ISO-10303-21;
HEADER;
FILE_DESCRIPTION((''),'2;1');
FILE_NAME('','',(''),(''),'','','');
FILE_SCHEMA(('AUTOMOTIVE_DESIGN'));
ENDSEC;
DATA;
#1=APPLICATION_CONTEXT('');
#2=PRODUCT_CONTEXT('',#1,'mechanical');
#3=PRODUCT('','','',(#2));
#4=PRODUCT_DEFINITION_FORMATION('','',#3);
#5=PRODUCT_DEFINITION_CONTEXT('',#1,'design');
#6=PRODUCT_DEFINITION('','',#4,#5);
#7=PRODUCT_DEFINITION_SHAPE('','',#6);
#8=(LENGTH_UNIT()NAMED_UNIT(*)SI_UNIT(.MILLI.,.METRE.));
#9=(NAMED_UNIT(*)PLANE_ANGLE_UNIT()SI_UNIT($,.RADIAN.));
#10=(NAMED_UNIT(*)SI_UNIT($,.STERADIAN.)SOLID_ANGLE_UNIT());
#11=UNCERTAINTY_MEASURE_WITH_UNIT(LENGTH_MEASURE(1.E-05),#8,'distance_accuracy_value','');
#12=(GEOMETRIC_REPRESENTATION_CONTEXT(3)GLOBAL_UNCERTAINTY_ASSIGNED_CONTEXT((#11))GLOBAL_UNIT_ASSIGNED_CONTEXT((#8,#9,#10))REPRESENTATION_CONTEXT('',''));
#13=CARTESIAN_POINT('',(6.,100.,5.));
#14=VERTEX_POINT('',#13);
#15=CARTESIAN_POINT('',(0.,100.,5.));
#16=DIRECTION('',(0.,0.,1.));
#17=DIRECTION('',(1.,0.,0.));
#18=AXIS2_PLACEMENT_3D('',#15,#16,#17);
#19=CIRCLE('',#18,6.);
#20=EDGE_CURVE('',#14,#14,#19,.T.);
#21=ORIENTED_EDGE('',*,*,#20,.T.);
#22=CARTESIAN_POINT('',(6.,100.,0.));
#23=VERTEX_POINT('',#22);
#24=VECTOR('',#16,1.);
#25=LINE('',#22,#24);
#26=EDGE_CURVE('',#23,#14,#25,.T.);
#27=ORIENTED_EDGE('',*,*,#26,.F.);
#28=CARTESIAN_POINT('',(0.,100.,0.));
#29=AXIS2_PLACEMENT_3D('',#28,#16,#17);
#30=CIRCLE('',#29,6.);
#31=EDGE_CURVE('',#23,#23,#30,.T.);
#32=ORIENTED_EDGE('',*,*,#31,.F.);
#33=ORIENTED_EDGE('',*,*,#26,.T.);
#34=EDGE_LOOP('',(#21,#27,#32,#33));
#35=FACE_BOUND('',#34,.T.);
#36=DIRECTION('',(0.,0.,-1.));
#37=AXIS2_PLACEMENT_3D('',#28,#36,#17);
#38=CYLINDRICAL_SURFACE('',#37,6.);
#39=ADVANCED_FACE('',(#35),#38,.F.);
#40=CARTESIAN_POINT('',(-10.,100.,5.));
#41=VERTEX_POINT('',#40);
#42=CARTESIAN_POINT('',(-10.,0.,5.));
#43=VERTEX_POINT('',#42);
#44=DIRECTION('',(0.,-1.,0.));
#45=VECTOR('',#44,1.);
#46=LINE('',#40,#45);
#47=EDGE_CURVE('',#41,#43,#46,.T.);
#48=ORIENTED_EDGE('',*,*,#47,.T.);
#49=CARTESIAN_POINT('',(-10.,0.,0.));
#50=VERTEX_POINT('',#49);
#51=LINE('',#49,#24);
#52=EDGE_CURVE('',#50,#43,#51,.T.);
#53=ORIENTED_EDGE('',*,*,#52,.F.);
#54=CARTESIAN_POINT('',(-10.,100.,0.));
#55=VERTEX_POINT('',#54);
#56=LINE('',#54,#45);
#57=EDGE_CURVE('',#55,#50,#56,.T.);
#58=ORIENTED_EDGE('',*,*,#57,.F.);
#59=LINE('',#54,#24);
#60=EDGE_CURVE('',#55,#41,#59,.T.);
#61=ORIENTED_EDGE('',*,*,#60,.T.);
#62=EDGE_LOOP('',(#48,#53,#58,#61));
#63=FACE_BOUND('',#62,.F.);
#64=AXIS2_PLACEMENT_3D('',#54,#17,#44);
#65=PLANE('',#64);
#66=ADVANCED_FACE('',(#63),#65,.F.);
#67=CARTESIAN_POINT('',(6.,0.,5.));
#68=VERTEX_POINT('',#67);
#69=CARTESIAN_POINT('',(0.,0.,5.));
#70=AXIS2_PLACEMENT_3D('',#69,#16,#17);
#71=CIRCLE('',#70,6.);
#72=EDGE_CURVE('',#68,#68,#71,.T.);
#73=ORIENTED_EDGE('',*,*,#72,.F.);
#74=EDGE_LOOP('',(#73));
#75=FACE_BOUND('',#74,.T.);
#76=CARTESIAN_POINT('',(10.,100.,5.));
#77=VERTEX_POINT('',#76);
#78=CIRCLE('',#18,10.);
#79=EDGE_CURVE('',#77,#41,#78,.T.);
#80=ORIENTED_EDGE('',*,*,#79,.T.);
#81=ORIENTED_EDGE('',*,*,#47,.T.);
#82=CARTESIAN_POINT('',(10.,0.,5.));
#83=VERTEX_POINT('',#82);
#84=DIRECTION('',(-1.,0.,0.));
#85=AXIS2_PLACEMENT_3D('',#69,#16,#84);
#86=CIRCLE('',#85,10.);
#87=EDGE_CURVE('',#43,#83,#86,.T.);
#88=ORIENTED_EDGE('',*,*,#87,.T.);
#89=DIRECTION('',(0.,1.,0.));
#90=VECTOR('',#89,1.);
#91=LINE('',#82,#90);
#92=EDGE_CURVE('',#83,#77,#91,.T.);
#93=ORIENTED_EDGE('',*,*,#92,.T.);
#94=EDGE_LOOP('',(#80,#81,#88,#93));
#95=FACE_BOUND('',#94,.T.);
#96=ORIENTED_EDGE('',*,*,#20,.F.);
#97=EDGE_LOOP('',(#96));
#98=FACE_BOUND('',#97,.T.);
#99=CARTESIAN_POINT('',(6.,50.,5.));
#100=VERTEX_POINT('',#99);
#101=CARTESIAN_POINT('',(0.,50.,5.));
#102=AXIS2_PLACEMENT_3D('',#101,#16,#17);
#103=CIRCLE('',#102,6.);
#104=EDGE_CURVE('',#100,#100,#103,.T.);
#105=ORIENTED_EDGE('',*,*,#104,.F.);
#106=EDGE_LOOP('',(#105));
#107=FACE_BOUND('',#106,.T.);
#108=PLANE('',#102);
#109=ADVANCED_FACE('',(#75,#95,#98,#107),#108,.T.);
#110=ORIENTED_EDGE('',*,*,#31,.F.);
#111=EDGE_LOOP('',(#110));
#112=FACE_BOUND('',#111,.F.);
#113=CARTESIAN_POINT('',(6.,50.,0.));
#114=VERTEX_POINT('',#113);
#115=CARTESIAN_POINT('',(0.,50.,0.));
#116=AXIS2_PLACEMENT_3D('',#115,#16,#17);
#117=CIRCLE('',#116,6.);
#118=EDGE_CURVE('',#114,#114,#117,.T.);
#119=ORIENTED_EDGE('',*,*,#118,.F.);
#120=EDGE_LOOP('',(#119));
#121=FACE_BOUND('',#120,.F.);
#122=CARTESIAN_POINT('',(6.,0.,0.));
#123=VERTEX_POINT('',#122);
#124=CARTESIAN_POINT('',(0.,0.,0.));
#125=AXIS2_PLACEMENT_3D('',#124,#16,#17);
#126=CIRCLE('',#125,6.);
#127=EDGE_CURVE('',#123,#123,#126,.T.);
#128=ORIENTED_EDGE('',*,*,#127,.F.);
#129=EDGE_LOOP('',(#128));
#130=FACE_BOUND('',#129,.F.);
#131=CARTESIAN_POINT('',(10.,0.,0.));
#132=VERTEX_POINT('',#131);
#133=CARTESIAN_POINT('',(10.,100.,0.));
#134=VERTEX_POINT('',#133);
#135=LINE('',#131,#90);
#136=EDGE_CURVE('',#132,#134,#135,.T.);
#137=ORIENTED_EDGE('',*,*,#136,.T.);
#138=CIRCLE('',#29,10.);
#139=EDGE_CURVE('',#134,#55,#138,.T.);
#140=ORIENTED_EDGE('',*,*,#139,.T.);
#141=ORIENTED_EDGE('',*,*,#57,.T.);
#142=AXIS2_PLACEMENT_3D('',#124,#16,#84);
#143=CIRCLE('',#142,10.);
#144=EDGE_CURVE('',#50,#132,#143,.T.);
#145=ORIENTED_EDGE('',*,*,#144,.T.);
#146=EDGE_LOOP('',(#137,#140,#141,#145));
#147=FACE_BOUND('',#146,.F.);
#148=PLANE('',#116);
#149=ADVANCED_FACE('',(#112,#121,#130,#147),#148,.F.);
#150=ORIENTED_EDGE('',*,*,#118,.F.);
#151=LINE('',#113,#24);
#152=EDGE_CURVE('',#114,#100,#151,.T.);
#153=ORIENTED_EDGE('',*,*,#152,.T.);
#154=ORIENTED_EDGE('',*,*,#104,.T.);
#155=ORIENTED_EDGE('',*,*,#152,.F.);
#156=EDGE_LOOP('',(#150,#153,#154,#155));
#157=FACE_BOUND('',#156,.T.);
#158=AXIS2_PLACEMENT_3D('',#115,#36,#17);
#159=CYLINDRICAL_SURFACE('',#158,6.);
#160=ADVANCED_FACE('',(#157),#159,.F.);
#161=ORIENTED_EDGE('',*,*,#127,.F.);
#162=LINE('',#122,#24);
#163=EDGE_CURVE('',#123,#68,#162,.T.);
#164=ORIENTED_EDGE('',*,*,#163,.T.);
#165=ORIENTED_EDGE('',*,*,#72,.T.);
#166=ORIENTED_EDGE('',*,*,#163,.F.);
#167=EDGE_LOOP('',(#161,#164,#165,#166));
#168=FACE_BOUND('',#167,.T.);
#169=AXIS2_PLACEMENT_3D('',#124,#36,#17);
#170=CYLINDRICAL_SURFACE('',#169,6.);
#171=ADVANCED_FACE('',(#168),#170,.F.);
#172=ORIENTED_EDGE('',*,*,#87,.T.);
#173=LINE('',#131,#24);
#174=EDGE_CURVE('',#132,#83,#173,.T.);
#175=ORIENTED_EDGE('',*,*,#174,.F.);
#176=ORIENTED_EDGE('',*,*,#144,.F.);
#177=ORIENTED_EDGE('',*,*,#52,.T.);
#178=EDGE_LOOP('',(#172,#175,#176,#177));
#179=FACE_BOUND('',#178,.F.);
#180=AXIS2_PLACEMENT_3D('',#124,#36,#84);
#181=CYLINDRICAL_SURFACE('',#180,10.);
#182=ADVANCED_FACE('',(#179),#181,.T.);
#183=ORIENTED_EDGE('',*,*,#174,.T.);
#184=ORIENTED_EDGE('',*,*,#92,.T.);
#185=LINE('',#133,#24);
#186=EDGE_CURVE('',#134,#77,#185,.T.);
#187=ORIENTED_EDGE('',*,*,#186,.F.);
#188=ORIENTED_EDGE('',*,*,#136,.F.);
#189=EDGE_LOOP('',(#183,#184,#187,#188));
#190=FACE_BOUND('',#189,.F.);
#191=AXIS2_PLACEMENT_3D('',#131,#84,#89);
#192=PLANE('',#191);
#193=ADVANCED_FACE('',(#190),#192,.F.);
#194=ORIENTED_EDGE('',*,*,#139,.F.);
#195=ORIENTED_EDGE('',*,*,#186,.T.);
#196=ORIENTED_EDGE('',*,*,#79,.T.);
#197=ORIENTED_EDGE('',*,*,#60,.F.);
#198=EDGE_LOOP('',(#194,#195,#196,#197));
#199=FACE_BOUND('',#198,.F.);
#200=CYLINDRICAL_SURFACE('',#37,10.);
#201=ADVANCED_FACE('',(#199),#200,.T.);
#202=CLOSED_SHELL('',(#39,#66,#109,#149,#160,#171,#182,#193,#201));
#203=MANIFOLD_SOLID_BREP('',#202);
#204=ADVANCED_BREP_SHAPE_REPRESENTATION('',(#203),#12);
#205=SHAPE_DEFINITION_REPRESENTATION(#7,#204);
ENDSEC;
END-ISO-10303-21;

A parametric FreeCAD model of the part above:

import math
import FreeCAD as App
import Part
import Sketcher
Q = App.Units.Quantity

doc = App.newDocument("Part")
params = doc.addObject("Spreadsheet::Sheet", "Params")
for row, (alias, value) in enumerate([
    ("sketch1_diameter", "12 mm"),
    ("sketch1_radius", "10 mm"),
    ("sketch1_height", "100 mm"),
    ("pad1_length", "5 mm"),
], start=1):
    params.set(f"A{row}", alias)
    params.set(f"B{row}", "=" + value)
    params.setAlias(f"B{row}", alias)

body = doc.addObject("PartDesign::Body", "Body")

# Sketch on XY plane
sketch1 = body.newObject("Sketcher::SketchObject", "Sketch")
sketch1.AttachmentSupport = (doc.getObject("XY_Plane"), [""])
sketch1.MapMode = "FlatFace"
sketch1.addGeometry(Part.LineSegment(App.Vector(-10, 100, 0), App.Vector(-10, 0, 0)), False)
sketch1.addGeometry(Part.ArcOfCircle(Part.Circle(App.Vector(0, 0, 0), App.Vector(0, 0, 1), 10), math.radians(180), math.radians(360)), False)
sketch1.addGeometry(Part.LineSegment(App.Vector(10, 0, 0), App.Vector(10, 100, 0)), False)
sketch1.addGeometry(Part.ArcOfCircle(Part.Circle(App.Vector(0, 100, 0), App.Vector(0, 0, 1), 10), math.radians(0), math.radians(180)), False)
sketch1.addGeometry(Part.Circle(App.Vector(0, 0, 0), App.Vector(0, 0, 1), 6), False)
sketch1.addGeometry(Part.Circle(App.Vector(0, 50, 0), App.Vector(0, 0, 1), 6), False)
sketch1.addGeometry(Part.Circle(App.Vector(0, 100, 0), App.Vector(0, 0, 1), 6), False)
sketch1.addConstraint(Sketcher.Constraint("Tangent", 0, 2, 1, 1))
sketch1.addConstraint(Sketcher.Constraint("Tangent", 1, 2, 2, 1))
sketch1.addConstraint(Sketcher.Constraint("Tangent", 2, 2, 3, 1))
sketch1.addConstraint(Sketcher.Constraint("Tangent", 3, 2, 0, 1))
sketch1.addConstraint(Sketcher.Constraint("Vertical", 0))
sketch1.addConstraint(Sketcher.Constraint("Vertical", 2))
sketch1.addConstraint(Sketcher.Constraint("Coincident", 1, 3, -1, 1))
sketch1.addConstraint(Sketcher.Constraint("Coincident", 4, 3, -1, 1))
sketch1.addConstraint(Sketcher.Constraint("Coincident", 6, 3, 3, 3))
sketch1.addConstraint(Sketcher.Constraint("Equal", 4, 5))
sketch1.addConstraint(Sketcher.Constraint("Equal", 5, 6))
sketch1.addConstraint(Sketcher.Constraint("PointOnObject", 5, 3, -2))
sketch1.addConstraint(Sketcher.Constraint("Diameter", 4, Q("12 mm")))
sketch1.addConstraint(Sketcher.Constraint("Radius", 1, Q("10 mm")))
sketch1.addConstraint(Sketcher.Constraint("DistanceY", 0, 2, 0, 1, Q("100 mm")))
sketch1.addConstraint(Sketcher.Constraint("DistanceY", -1, 1, 5, 3, Q("50 mm")))
sketch1.setExpression("Constraints[12]", "Params.sketch1_diameter")
sketch1.setExpression("Constraints[13]", "Params.sketch1_radius")
sketch1.setExpression("Constraints[14]", "Params.sketch1_height")
pad1 = body.newObject("PartDesign::Pad", "Pad")
pad1.Profile = sketch1
pad1.setExpression("Length", "Params.pad1_length")

doc.recompute()
